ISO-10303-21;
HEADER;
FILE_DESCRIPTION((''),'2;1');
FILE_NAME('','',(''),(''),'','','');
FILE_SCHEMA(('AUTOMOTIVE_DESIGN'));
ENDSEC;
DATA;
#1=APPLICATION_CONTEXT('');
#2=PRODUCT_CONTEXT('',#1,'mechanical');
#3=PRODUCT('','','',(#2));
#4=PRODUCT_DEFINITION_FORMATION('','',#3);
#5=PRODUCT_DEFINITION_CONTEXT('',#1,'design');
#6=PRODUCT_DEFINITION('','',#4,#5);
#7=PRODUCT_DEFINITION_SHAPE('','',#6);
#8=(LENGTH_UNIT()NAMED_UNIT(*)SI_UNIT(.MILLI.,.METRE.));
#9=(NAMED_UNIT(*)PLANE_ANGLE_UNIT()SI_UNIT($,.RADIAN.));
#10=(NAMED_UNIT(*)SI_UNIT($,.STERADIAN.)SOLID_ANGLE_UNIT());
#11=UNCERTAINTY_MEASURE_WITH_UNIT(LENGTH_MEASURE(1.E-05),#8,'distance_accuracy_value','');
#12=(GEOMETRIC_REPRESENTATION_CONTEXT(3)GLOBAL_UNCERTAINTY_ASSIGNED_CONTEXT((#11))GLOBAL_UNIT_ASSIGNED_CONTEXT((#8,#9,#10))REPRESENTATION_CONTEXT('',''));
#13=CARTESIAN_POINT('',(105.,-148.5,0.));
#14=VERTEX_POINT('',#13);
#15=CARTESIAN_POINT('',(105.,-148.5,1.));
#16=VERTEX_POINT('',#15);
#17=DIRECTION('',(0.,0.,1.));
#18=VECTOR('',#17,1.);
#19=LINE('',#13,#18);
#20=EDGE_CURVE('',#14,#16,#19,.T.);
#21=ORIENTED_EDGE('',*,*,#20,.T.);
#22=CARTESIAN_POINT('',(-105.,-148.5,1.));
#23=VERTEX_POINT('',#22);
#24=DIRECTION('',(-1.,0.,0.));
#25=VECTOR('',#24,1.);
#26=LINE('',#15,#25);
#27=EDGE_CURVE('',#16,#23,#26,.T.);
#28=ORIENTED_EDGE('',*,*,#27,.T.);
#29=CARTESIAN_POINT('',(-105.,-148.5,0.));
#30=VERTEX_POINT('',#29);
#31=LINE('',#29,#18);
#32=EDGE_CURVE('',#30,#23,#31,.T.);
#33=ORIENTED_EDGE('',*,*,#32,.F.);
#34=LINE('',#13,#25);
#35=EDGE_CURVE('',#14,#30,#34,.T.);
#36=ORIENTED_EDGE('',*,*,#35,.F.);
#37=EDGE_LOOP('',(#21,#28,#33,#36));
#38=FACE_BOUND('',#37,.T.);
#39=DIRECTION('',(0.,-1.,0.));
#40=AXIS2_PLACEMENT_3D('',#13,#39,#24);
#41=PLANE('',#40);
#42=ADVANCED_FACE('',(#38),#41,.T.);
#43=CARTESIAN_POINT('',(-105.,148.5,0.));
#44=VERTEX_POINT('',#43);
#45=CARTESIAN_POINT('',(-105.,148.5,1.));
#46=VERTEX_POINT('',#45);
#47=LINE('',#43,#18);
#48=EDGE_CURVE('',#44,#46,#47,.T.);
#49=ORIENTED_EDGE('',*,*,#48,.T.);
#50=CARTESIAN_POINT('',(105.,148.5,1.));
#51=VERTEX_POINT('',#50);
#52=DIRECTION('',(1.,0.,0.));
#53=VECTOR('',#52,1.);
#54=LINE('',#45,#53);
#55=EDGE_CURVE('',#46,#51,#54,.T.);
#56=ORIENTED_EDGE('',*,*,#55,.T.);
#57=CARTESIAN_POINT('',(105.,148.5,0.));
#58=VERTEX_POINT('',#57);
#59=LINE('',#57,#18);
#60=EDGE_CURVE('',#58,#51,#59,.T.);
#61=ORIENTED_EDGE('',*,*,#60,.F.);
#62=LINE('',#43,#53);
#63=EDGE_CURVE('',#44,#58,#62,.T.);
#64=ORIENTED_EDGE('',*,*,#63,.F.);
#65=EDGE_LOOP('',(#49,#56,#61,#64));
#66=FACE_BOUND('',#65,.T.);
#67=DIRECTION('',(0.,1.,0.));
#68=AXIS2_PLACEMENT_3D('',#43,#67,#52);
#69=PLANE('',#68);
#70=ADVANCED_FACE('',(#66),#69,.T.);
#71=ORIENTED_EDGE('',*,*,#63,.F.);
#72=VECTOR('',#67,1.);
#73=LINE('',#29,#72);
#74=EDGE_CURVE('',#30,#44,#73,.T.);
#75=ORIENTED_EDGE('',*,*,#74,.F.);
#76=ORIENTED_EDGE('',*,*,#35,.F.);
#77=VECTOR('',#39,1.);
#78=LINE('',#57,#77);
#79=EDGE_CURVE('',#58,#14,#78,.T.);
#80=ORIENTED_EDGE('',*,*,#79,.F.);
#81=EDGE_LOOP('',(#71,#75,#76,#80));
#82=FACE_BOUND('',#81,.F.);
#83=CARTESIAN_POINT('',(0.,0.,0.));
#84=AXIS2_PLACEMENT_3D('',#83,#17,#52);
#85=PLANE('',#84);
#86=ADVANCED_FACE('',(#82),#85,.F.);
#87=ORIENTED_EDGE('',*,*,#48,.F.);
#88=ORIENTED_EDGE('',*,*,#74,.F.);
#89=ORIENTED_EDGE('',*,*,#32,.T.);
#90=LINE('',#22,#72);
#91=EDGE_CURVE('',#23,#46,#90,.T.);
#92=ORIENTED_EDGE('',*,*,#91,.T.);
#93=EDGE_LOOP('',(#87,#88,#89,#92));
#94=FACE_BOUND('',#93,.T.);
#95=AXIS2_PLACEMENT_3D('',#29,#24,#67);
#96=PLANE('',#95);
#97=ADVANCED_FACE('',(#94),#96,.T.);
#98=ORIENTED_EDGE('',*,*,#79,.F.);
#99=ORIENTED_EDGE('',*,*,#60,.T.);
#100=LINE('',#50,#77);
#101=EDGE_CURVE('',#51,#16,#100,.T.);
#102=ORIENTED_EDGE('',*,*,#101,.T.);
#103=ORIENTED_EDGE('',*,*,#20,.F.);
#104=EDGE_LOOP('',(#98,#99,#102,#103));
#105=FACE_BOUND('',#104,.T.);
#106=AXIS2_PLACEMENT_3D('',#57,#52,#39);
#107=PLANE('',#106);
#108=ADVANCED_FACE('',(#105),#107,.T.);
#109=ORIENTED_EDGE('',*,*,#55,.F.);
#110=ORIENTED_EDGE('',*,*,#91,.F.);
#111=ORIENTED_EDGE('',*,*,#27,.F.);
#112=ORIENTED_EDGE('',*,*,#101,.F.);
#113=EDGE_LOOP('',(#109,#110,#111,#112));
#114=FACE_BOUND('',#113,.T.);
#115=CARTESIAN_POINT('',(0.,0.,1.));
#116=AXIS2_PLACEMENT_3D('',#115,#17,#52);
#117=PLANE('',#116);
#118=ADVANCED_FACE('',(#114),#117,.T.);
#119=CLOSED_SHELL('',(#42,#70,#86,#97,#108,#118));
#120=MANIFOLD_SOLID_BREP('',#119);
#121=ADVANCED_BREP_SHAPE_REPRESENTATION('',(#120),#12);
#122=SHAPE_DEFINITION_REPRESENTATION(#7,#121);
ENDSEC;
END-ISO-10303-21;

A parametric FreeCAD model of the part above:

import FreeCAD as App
import Part
import Sketcher

V = App.Vector
Q = App.Units.Quantity

doc = App.newDocument("Part")
body = doc.addObject("PartDesign::Body", "Body")

# Sketch on XY plane
sketch1 = body.newObject("Sketcher::SketchObject", "Sketch")
sketch1.AttachmentSupport = (doc.getObject("XY_Plane"), [""])
sketch1.MapMode = "FlatFace"
sketch1.addGeometry(Part.LineSegment(V(105, 148, 0), V(-105, 148, 0)), False)
sketch1.addGeometry(Part.LineSegment(V(-105, 148, 0), V(-105, -148, 0)), False)
sketch1.addGeometry(Part.LineSegment(V(-105, -148, 0), V(105, -148, 0)), False)
sketch1.addGeometry(Part.LineSegment(V(105, -148, 0), V(105, 148, 0)), False)
sketch1.addConstraint(Sketcher.Constraint("Coincident", 0, 2, 1, 1))
sketch1.addConstraint(Sketcher.Constraint("Coincident", 1, 2, 2, 1))
sketch1.addConstraint(Sketcher.Constraint("Coincident", 2, 2, 3, 1))
sketch1.addConstraint(Sketcher.Constraint("Coincident", 3, 2, 0, 1))
sketch1.addConstraint(Sketcher.Constraint("Horizontal", 0))
sketch1.addConstraint(Sketcher.Constraint("Vertical", 1))
sketch1.addConstraint(Sketcher.Constraint("Horizontal", 2))
sketch1.addConstraint(Sketcher.Constraint("Vertical", 3))
sketch1.addConstraint(Sketcher.Constraint("Symmetric", 0, 2, 2, 2, -1, 1))
sketch1.addConstraint(Sketcher.Constraint("DistanceX", 0, 2, 0, 1, Q("210 mm")))
sketch1.addConstraint(Sketcher.Constraint("DistanceY", 1, 2, 1, 1, Q("297 mm")))
pad1 = body.newObject("PartDesign::Pad", "Pad")
pad1.Profile = sketch1
pad1.Length = 1

doc.recompute()
